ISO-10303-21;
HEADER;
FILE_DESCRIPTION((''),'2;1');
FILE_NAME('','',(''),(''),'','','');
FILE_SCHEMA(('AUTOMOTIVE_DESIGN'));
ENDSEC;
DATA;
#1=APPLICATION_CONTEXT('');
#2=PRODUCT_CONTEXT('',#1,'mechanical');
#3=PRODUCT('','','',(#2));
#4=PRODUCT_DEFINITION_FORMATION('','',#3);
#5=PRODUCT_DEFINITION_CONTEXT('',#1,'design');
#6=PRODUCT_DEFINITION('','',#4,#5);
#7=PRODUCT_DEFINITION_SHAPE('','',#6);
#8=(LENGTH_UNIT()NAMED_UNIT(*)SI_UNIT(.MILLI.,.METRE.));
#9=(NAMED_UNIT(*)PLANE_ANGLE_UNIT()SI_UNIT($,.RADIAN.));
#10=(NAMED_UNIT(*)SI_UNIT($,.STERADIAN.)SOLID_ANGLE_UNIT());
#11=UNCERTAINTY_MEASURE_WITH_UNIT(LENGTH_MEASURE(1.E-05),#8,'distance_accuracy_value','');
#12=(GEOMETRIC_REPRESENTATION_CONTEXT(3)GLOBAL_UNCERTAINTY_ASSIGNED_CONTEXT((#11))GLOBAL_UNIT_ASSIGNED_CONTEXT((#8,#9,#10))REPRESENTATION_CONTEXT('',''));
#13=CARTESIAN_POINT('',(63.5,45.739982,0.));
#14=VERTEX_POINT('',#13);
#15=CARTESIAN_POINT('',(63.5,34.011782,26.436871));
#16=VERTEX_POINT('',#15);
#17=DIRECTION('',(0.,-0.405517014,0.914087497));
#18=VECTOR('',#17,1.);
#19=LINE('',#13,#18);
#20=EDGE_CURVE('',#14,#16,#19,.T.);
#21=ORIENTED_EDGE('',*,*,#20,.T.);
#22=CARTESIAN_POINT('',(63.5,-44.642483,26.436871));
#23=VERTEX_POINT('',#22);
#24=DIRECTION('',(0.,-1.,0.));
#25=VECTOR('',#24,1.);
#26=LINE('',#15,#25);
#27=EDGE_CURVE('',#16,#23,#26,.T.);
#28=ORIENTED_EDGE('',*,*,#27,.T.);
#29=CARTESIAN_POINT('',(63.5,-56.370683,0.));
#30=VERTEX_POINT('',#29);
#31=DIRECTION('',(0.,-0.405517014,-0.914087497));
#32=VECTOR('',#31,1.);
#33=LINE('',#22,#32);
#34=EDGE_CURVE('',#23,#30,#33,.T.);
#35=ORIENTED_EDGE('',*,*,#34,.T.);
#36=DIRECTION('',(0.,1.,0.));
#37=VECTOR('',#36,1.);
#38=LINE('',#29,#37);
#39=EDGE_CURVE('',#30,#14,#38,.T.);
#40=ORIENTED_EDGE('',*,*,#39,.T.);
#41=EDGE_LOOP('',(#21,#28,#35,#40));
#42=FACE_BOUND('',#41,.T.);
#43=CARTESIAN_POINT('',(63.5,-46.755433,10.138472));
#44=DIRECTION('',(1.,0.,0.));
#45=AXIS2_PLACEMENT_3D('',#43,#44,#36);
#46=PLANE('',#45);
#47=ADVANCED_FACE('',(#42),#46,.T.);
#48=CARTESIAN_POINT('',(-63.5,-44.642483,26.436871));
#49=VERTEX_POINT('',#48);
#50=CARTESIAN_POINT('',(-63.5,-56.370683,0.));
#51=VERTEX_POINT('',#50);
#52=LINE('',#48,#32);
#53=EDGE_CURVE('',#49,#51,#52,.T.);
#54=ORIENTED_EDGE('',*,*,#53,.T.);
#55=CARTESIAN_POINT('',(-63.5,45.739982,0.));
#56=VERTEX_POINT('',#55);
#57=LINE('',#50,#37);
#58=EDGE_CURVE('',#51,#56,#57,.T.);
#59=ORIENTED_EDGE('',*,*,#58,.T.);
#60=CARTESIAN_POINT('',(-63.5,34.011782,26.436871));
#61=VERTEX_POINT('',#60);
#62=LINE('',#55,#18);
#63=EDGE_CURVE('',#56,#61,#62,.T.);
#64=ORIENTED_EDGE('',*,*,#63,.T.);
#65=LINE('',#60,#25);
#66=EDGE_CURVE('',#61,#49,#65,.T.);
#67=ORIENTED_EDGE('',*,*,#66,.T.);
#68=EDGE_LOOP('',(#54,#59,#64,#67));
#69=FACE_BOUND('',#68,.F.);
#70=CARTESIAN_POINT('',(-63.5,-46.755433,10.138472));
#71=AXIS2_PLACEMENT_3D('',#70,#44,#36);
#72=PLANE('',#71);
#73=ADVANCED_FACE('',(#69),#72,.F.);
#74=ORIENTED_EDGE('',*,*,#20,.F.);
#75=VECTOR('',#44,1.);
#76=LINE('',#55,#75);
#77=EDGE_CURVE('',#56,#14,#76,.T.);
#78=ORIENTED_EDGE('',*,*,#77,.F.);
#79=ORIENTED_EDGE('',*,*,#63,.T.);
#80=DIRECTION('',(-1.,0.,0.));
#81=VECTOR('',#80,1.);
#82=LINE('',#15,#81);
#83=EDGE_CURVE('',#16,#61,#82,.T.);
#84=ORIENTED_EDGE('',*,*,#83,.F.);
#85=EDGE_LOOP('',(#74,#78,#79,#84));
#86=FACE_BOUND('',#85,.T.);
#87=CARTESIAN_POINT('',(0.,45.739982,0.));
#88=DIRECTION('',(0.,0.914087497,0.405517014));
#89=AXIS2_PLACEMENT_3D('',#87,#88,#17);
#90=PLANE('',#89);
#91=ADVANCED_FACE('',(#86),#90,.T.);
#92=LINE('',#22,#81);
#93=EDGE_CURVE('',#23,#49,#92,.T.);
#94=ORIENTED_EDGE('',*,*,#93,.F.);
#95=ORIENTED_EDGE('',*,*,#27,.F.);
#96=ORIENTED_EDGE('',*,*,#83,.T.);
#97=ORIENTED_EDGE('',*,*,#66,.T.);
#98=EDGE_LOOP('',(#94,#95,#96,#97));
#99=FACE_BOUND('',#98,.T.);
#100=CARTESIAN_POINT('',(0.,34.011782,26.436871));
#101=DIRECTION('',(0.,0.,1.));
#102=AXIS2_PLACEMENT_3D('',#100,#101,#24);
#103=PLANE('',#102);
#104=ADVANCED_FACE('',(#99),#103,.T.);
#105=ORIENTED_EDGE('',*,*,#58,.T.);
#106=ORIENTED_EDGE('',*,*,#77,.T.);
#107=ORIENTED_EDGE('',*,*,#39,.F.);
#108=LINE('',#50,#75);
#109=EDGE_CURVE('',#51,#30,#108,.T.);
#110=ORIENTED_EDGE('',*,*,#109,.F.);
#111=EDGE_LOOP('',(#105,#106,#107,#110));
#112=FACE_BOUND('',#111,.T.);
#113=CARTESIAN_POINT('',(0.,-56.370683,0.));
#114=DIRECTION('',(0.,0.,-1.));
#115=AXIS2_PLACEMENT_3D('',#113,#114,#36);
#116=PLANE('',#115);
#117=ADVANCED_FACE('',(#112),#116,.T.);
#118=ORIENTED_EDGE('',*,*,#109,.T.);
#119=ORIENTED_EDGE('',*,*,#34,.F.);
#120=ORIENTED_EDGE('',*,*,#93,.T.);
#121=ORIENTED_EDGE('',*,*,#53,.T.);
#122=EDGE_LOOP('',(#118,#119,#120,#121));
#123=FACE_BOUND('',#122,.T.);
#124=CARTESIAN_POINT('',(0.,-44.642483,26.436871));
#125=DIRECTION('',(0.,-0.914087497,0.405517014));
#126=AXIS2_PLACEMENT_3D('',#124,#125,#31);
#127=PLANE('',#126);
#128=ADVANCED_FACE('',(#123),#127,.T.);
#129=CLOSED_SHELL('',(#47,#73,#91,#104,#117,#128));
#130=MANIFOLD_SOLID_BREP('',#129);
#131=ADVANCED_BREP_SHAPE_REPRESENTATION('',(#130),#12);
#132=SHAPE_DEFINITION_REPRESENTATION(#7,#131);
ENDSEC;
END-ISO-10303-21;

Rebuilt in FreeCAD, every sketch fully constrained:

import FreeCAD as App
import Part
import Sketcher
Q = App.Units.Quantity


def add_polygon(sketch, points):
    """Adds a closed chain of lines whose ends are joined by coincident constraints."""
    first, n = sketch.GeometryCount, len(points)
    for a, b in zip(points, points[1:] + points[:1]):
        sketch.addGeometry(Part.LineSegment(App.Vector(*a, 0), App.Vector(*b, 0)), False)
    for i in range(n):
        sketch.addConstraint(Sketcher.Constraint("Coincident", first + i, 2, first + (i + 1) % n, 1))

doc = App.newDocument("Part")
body = doc.addObject("PartDesign::Body", "Body")

sketch1 = body.newObject("Sketcher::SketchObject", "Sketch")
sketch1.AttachmentSupport = (doc.getObject("YZ_Plane"), [""])
sketch1.MapMode = "FlatFace"
add_polygon(sketch1, [(-45, 26), (-56, 0), (46, 0), (34, 26)])
sketch1.addConstraint([
    Sketcher.Constraint("Horizontal", 1),
    Sketcher.Constraint("Horizontal", 3),
    Sketcher.Constraint("PointOnObject", 0, 2, -1),
    Sketcher.Constraint("Equal", 0, 2),
    Sketcher.Constraint("DistanceX", 2, 2, 1, 2, Q("11.7282 mm")),
    Sketcher.Constraint("DistanceX", 1, 1, 1, 2, Q("102.110665 mm")),
    Sketcher.Constraint("DistanceX", -1, 1, 1, 2, Q("45.739982 mm")),
    Sketcher.Constraint("DistanceY", -1, 1, 2, 2, Q("26.436871 mm")),
])
pad1 = body.newObject("PartDesign::Pad", "Pad")
pad1.Profile = sketch1
pad1.Length = Q("5 in")
pad1.Midplane = True

doc.recompute()
